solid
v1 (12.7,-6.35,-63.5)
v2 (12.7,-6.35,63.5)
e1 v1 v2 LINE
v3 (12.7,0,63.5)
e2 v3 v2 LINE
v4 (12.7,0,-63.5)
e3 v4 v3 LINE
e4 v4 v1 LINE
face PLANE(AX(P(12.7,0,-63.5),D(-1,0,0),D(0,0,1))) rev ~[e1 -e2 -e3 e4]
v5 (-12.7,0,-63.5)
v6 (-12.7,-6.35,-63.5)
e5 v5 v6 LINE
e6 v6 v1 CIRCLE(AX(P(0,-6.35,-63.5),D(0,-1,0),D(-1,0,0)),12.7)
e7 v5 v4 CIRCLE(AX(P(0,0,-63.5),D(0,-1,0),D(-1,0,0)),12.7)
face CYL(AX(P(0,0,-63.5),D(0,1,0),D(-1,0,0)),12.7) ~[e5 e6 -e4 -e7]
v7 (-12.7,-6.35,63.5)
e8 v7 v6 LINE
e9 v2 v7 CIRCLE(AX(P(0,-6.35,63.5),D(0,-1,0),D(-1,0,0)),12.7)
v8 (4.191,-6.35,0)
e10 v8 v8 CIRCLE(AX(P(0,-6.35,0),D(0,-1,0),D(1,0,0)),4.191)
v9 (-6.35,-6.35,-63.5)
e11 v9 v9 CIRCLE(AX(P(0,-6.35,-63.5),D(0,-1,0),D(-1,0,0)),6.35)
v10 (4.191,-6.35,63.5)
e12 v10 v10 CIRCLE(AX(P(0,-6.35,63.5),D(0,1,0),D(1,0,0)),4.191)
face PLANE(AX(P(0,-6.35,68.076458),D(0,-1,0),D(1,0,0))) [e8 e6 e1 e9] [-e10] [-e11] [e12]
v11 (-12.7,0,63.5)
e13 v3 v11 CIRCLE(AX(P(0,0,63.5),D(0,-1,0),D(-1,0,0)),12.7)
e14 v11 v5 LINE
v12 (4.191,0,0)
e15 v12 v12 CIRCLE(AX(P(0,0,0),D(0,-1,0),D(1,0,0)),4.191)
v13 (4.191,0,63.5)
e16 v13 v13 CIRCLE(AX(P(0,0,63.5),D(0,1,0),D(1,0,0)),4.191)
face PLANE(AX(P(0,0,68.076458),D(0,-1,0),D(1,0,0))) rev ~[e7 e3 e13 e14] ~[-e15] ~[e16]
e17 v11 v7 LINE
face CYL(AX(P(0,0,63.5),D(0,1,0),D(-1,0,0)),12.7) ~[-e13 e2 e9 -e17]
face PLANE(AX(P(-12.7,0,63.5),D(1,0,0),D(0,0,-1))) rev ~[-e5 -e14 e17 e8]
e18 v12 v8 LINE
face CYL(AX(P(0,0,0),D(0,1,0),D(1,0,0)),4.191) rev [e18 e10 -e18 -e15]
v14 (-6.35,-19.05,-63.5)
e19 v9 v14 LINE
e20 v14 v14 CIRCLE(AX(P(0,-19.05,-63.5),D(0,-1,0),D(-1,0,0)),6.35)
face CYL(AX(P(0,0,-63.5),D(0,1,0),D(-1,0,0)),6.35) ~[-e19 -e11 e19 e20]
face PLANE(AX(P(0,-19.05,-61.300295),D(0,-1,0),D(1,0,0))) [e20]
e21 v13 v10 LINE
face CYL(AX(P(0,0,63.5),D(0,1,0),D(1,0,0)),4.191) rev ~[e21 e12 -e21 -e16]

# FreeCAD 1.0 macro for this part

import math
import FreeCAD as App
import Part
import Sketcher

V = App.Vector
Q = App.Units.Quantity

doc = App.newDocument("Part")
body = doc.addObject("PartDesign::Body", "Body")

sketch1 = body.newObject("Sketcher::SketchObject", "Sketch")
sketch1.AttachmentSupport = (doc.getObject("XZ_Plane"), [""])
sketch1.MapMode = "FlatFace"
sketch1.addGeometry([
    Part.ArcOfCircle(Part.Circle(V(0, 63.5, 0), V(0, 0, 1), 12.7), math.radians(0), math.radians(180)),
    Part.LineSegment(V(-12.7, 63.5, 0), V(-12.7, -63.5, 0)),
    Part.ArcOfCircle(Part.Circle(V(0, -63.5, 0), V(0, 0, 1), 12.7), math.radians(180), math.radians(360)),
    Part.LineSegment(V(12.7, -63.5, 0), V(12.7, 63.5, 0)),
    Part.Circle(V(0, -63.5, 0), V(0, 0, 1), 6.35),
    Part.Circle(V(0, 0, 0), V(0, 0, 1), 4.191),
    Part.Circle(V(0, 63.5, 0), V(0, 0, 1), 4.191),
], False)
sketch1.addConstraint([
    Sketcher.Constraint("Tangent", 0, 2, 1, 1),
    Sketcher.Constraint("Tangent", 1, 2, 2, 1),
    Sketcher.Constraint("Tangent", 2, 2, 3, 1),
    Sketcher.Constraint("Tangent", 3, 2, 0, 1),
    Sketcher.Constraint("Vertical", 1),
    Sketcher.Constraint("Vertical", 3),
    Sketcher.Constraint("Coincident", 5, 3, -1, 1),
    Sketcher.Constraint("Coincident", 4, 3, 2, 3),
    Sketcher.Constraint("Coincident", 6, 3, 0, 3),
    Sketcher.Constraint("Equal", 5, 6),
    Sketcher.Constraint("Symmetric", 0, 3, 2, 3, -1, 1),
    Sketcher.Constraint("Diameter", 4, Q("0.5 in")),
    Sketcher.Constraint("Radius", 0, Q("0.5 in")),
    Sketcher.Constraint("Diameter", 5, Q("0.33 in")),
    Sketcher.Constraint("DistanceY", 1, 2, 1, 1, Q("5 in")),
])
pad1 = body.newObject("PartDesign::Pad", "Pad")
pad1.Profile = sketch1
pad1.Length = Q("0.25 in")

sketch2 = body.newObject("Sketcher::SketchObject", "Sketch001")
sketch2.AttachmentSupport = (doc.getObject("XZ_Plane"), [""])
sketch2.MapMode = "FlatFace"
sketch2.addGeometry(Part.Circle(V(0, -63.5, 0), V(0, 0, 1), 6.35), False)
sketch2.addConstraint([
    Sketcher.Constraint("PointOnObject", 0, 3, -2),
    Sketcher.Constraint("Diameter", 0, Q("0.5 in")),
    Sketcher.Constraint("DistanceY", 0, 3, -1, 1, Q("2.5 in")),
])
pad2 = body.newObject("PartDesign::Pad", "Pad001")
pad2.Profile = sketch2
pad2.Length = Q("0.75 in")

doc.recompute()
